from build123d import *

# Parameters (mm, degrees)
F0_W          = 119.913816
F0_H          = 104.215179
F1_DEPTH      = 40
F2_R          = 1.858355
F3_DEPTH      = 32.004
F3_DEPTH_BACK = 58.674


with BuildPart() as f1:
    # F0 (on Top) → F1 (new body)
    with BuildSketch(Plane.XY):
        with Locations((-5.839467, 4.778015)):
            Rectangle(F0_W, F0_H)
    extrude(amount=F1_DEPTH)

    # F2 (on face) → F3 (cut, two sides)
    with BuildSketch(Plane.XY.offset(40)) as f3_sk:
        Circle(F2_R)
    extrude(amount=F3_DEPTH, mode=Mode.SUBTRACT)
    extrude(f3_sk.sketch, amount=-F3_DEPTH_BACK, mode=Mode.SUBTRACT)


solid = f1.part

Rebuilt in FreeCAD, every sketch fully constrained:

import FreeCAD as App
import Part
import Sketcher
Q = App.Units.Quantity


def add_polygon(sketch, points):
    """Adds a closed chain of lines whose ends are joined by coincident constraints."""
    first, n = sketch.GeometryCount, len(points)
    for a, b in zip(points, points[1:] + points[:1]):
        sketch.addGeometry(Part.LineSegment(App.Vector(*a, 0), App.Vector(*b, 0)), False)
    for i in range(n):
        sketch.addConstraint(Sketcher.Constraint("Coincident", first + i, 2, first + (i + 1) % n, 1))

doc = App.newDocument("Part")
body = doc.addObject("PartDesign::Body", "Body")

sketch1 = body.newObject("Sketcher::SketchObject", "Sketch")
sketch1.AttachmentSupport = (doc.getObject("XY_Plane"), [""])
sketch1.MapMode = "FlatFace"
add_polygon(sketch1, [(-66, 57), (-66, -47), (54, -47), (54, 57)])
sketch1.addConstraint(Sketcher.Constraint("Vertical", 0))
sketch1.addConstraint(Sketcher.Constraint("Horizontal", 1))
sketch1.addConstraint(Sketcher.Constraint("Vertical", 2))
sketch1.addConstraint(Sketcher.Constraint("Horizontal", 3))
sketch1.addConstraint(Sketcher.Constraint("DistanceY", 0, 2, 0, 1, Q("104.215179 mm")))
sketch1.addConstraint(Sketcher.Constraint("DistanceX", 1, 1, 1, 2, Q("119.913816 mm")))
sketch1.addConstraint(Sketcher.Constraint("DistanceX", -1, 1, 1, 2, Q("54.117441 mm")))
sketch1.addConstraint(Sketcher.Constraint("DistanceY", 0, 2, -1, 1, Q("47.329574 mm")))
pad1 = body.newObject("PartDesign::Pad", "Pad")
pad1.Profile = sketch1
pad1.Length = 40

sketch2 = body.newObject("Sketcher::SketchObject", "Sketch001")
sketch2.AttachmentSupport = (doc.getObject("XY_Plane"), [""])
sketch2.MapMode = "FlatFace"
sketch2.AttachmentOffset = App.Placement(App.Vector(0, 0, 40), App.Rotation())
sketch2.addGeometry(Part.Circle(App.Vector(0, 0, 0), App.Vector(0, 0, 1), 1.9), False)
sketch2.addConstraint(Sketcher.Constraint("Coincident", 0, 3, -1, 1))
sketch2.addConstraint(Sketcher.Constraint("Diameter", 0, Q("3.71671 mm")))
pocket1 = body.newObject("PartDesign::Pocket", "Pocket")
pocket1.Profile = sketch2
pocket1.Type = "ThroughAll"
pocket1.Midplane = True

doc.recompute()
